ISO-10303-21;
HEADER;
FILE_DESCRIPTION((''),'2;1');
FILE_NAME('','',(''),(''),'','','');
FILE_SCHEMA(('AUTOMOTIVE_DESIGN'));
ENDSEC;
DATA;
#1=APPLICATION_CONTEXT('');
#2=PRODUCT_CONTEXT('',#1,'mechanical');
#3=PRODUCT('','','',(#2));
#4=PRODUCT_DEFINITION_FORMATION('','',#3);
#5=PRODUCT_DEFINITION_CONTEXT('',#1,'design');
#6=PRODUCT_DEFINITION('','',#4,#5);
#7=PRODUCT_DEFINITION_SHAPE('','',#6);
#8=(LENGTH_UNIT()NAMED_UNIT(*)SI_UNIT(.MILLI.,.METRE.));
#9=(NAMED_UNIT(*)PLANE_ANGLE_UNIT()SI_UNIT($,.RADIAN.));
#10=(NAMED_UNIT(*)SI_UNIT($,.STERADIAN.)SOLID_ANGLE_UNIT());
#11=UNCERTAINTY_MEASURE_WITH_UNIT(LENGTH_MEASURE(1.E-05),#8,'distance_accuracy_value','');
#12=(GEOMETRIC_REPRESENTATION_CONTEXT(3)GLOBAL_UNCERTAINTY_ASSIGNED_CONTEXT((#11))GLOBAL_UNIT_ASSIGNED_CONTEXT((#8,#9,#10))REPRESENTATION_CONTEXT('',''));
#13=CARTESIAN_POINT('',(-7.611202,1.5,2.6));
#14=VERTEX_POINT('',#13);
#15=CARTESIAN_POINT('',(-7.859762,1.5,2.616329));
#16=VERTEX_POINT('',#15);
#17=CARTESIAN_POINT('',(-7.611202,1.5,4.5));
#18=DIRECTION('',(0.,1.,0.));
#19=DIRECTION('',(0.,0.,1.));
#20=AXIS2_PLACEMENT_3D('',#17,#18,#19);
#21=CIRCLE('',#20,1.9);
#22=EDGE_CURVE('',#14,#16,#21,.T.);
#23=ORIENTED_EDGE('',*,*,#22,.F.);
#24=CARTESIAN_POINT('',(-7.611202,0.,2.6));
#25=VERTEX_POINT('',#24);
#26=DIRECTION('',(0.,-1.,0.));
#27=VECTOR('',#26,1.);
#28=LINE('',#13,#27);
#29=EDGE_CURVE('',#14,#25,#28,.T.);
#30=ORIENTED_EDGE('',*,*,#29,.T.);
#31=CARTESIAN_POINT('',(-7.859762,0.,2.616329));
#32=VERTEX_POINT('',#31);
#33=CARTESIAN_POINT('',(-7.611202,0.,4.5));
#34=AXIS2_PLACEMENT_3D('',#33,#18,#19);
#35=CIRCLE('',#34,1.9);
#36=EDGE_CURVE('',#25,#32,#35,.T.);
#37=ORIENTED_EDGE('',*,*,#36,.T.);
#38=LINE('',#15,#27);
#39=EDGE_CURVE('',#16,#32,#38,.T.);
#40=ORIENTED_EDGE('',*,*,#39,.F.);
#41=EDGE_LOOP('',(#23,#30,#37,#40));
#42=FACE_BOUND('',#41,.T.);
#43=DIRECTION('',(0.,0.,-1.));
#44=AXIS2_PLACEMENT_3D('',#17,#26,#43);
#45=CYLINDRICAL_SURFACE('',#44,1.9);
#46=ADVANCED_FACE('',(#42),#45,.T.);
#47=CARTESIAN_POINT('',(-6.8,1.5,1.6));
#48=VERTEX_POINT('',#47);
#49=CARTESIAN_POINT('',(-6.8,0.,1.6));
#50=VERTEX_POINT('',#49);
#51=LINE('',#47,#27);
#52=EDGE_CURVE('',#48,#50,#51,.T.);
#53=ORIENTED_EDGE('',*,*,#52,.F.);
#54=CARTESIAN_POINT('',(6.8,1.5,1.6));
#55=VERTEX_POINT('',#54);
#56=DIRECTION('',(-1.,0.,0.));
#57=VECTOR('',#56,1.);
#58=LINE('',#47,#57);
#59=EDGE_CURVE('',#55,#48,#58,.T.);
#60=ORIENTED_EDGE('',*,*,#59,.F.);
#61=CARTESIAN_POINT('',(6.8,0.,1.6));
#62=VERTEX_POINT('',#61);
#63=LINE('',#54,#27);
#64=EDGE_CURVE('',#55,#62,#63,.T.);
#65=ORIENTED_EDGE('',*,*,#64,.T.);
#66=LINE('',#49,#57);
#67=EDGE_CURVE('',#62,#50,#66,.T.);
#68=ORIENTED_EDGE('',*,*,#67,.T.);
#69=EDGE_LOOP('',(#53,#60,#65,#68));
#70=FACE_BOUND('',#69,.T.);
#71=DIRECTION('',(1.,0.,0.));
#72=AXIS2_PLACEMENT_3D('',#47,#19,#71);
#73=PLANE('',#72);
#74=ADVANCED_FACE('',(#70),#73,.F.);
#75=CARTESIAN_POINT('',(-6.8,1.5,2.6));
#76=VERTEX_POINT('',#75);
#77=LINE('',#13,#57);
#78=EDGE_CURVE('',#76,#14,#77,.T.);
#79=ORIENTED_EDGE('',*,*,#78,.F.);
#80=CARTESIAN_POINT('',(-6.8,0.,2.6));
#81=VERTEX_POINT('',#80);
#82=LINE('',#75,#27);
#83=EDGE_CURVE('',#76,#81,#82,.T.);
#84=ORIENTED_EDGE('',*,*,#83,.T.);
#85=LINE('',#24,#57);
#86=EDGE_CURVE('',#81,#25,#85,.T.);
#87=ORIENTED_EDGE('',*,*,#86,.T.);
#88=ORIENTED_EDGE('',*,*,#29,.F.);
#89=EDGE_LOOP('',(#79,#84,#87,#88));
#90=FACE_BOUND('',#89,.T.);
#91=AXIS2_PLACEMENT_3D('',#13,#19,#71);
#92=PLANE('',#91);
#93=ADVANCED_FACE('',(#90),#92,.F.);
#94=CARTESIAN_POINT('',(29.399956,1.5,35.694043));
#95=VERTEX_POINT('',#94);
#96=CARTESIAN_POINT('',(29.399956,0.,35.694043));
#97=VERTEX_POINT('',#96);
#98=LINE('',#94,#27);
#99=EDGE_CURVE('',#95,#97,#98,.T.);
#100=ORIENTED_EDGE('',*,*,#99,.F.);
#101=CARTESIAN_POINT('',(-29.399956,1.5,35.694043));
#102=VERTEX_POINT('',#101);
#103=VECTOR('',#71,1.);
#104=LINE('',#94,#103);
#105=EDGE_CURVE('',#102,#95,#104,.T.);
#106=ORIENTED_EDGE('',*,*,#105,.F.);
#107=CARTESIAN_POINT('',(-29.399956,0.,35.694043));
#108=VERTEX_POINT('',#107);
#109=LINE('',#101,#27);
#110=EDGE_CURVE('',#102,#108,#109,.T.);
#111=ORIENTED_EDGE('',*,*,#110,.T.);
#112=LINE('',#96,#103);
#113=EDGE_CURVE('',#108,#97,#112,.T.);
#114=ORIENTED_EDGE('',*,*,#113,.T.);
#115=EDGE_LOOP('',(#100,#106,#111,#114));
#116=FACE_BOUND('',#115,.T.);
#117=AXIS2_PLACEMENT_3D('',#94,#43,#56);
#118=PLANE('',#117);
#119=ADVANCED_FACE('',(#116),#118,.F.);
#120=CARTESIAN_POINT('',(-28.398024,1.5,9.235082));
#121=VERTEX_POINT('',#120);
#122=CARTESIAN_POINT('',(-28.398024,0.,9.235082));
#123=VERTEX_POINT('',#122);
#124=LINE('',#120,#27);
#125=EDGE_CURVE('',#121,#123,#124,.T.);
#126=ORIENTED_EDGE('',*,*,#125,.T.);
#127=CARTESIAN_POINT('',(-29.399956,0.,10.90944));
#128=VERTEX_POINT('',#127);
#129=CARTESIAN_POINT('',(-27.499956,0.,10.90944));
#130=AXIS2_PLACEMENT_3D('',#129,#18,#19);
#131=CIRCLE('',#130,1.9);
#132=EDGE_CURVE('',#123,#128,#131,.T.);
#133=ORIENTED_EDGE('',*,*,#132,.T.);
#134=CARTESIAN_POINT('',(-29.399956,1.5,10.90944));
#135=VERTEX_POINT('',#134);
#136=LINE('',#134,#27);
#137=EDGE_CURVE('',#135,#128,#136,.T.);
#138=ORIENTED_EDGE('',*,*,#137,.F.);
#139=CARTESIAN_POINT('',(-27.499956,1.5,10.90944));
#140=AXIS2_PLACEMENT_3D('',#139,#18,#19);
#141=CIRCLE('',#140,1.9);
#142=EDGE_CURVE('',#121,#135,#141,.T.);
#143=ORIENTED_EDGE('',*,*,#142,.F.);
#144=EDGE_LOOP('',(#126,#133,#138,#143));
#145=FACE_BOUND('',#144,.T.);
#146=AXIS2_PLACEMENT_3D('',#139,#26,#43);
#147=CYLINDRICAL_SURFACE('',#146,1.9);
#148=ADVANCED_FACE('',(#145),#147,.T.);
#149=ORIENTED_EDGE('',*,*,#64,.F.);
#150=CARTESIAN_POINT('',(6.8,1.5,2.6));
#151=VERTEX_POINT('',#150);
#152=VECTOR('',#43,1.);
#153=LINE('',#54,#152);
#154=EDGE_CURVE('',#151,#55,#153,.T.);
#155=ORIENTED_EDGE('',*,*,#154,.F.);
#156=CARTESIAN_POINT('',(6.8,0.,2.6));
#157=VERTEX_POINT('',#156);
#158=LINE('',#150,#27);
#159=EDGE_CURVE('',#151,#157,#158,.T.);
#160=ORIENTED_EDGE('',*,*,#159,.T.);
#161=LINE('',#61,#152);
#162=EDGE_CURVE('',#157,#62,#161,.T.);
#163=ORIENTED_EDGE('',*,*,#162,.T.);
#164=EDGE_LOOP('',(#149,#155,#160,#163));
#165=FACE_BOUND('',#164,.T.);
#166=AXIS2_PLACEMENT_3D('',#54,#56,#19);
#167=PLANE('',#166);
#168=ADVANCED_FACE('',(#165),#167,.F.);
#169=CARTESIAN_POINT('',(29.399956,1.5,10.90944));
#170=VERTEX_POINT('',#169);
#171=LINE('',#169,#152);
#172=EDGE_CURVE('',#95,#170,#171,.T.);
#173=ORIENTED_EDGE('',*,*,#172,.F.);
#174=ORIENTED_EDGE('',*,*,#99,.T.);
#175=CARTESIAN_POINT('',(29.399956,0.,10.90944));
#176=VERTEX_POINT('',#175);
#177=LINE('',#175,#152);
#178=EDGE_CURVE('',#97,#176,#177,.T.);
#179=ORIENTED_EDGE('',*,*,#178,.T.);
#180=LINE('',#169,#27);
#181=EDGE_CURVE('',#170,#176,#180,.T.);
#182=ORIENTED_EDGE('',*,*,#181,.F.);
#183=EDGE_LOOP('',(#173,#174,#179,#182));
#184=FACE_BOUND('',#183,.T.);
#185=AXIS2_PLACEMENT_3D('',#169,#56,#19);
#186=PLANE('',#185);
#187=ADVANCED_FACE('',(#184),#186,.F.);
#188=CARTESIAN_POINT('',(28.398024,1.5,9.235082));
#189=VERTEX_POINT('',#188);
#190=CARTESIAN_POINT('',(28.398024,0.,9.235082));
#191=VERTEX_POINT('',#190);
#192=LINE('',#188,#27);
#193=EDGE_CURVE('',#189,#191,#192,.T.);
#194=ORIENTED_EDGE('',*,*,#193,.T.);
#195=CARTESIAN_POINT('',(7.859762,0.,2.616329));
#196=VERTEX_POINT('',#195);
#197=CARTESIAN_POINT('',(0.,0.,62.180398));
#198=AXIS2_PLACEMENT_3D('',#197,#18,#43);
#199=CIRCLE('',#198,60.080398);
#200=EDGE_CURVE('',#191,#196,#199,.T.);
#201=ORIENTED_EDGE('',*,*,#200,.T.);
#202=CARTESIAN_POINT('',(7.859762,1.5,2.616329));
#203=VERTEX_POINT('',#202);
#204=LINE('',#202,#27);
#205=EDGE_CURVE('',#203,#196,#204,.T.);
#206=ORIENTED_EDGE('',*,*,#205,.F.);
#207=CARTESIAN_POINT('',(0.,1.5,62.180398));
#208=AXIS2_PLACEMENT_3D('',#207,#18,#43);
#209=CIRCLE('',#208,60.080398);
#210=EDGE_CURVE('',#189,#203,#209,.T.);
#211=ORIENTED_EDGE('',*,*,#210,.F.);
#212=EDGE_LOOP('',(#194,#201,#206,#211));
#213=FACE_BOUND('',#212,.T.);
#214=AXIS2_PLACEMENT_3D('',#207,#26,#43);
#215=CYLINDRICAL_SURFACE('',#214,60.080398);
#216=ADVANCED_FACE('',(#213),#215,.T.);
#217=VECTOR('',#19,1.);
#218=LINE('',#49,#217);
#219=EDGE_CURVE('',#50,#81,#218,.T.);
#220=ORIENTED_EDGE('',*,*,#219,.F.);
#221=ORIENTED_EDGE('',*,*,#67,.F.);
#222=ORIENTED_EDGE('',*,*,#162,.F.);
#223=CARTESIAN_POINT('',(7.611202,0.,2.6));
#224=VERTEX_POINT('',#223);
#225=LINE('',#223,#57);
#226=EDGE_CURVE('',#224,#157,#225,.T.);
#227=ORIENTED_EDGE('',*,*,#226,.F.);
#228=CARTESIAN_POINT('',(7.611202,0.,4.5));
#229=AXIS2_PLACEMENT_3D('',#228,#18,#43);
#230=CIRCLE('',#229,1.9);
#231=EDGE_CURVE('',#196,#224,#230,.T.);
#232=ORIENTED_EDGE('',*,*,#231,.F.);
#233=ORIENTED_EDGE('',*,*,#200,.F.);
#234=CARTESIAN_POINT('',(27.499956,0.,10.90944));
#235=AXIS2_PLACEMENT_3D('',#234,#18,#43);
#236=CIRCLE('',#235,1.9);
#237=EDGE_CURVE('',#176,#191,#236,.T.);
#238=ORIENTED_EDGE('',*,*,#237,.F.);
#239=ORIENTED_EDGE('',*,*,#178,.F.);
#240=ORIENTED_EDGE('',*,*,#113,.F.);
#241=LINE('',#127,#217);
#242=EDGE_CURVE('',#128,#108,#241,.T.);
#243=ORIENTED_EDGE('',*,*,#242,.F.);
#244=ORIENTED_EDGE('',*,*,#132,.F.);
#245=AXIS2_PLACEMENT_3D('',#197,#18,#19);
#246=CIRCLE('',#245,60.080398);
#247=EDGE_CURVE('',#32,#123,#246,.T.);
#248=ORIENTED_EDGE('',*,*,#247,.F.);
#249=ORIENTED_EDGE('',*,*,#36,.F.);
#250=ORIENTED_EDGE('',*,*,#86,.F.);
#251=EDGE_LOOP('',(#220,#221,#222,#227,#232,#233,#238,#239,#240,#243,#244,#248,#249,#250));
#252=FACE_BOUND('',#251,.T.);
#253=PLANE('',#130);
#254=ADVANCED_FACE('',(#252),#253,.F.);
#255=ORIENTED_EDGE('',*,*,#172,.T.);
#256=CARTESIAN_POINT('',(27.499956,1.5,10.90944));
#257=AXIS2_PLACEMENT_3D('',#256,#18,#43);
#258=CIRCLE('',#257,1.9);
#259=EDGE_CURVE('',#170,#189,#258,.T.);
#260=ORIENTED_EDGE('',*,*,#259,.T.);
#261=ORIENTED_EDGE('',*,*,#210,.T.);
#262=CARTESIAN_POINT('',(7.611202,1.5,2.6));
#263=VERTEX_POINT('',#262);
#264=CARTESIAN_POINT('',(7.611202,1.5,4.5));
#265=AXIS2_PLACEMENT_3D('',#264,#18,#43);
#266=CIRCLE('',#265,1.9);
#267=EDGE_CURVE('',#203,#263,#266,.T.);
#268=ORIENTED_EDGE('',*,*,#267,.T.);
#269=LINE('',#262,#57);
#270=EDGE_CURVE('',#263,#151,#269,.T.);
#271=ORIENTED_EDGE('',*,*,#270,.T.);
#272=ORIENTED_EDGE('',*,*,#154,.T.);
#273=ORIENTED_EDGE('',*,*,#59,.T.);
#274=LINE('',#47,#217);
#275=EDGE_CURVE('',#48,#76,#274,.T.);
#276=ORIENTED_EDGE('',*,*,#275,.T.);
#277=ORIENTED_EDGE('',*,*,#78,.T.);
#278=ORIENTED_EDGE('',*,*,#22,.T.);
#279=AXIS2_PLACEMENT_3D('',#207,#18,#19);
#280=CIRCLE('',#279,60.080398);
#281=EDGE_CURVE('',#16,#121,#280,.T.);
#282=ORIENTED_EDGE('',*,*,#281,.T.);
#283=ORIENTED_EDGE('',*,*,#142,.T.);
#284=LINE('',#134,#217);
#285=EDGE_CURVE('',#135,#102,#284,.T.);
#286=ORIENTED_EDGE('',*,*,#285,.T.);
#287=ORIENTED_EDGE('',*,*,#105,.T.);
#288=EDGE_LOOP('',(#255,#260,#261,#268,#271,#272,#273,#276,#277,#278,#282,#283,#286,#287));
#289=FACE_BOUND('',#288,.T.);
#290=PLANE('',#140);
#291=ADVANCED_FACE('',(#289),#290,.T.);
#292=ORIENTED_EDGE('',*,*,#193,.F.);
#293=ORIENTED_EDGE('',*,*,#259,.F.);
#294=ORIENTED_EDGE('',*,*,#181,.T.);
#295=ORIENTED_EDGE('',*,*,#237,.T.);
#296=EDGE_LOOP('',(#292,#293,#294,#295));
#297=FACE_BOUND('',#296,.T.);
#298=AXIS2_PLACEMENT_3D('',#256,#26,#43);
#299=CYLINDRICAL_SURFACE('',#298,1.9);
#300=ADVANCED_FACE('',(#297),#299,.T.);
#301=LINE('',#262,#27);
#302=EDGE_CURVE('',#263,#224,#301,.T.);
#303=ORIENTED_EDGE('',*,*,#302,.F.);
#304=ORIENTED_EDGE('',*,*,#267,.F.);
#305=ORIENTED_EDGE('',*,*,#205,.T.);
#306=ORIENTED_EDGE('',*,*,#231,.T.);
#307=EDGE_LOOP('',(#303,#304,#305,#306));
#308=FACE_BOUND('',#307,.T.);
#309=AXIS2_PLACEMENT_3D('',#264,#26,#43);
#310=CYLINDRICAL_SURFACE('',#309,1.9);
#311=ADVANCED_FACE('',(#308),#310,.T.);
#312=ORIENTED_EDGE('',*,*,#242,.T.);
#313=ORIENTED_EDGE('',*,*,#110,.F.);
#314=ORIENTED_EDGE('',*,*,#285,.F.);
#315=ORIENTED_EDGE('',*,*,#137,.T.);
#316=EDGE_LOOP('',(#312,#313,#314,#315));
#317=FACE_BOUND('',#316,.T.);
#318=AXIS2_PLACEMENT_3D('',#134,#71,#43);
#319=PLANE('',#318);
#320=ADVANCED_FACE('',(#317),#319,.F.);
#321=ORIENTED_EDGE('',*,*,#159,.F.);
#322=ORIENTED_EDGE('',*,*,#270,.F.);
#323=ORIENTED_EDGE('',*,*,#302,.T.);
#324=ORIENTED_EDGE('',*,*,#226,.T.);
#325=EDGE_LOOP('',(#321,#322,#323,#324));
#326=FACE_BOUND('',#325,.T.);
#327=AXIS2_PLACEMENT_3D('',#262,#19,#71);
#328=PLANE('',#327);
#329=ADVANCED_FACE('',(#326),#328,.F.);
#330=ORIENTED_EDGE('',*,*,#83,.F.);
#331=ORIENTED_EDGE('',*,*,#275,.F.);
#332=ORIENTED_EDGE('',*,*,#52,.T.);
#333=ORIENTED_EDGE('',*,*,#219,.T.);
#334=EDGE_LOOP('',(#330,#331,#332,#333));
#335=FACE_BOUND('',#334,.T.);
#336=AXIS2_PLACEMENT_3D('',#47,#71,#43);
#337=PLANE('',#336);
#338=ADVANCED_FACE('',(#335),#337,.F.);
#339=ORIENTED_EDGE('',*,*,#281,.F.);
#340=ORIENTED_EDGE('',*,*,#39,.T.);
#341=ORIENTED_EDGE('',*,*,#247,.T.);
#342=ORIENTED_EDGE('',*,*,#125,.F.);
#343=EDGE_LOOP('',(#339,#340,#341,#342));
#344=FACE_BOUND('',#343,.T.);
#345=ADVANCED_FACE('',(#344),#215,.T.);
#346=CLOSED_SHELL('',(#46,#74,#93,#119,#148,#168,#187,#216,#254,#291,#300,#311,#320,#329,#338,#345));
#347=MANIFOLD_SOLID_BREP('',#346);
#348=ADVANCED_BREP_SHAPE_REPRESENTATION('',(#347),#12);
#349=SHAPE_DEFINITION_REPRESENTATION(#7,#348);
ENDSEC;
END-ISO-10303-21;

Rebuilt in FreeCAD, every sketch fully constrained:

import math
import FreeCAD as App
import Part
import Sketcher

V = App.Vector

doc = App.newDocument("Part")
body = doc.addObject("PartDesign::Body", "Body")

# Sketch on XZ plane
sketch1 = body.newObject("Sketcher::SketchObject", "Sketch")
sketch1.AttachmentSupport = (doc.getObject("XZ_Plane"), [""])
sketch1.MapMode = "FlatFace"
sketch1.addGeometry([
    Part.LineSegment(V(29.4, 35.69, 0), V(29.4, 10.91, 0)),  # 0
    Part.ArcOfCircle(Part.Circle(V(27.5, 10.91, 0), V(0, 0, 1), 1.9), math.radians(-62), math.radians(0)),  # 1
    Part.ArcOfCircle(Part.Circle(V(0, 62.18, 0), V(0, 0, 1), 60.08), math.radians(-82), math.radians(-62)),  # 2
    Part.ArcOfCircle(Part.Circle(V(7.61, 4.5, 0), V(0, 0, 1), 1.9), math.radians(-90), math.radians(-82.48)),  # 3
    Part.LineSegment(V(7.61, 2.6, 0), V(6.8, 2.6, 0)),  # 4
    Part.LineSegment(V(6.8, 2.6, 0), V(6.8, 1.6, 0)),  # 5
    Part.LineSegment(V(6.8, 1.6, 0), V(-6.8, 1.6, 0)),  # 6
    Part.LineSegment(V(-6.8, 1.6, 0), V(-6.8, 2.6, 0)),  # 7
    Part.LineSegment(V(-6.8, 2.6, 0), V(-7.61, 2.6, 0)),  # 8
    Part.ArcOfCircle(Part.Circle(V(-7.61, 4.5, 0), V(0, 0, 1), 1.9), math.radians(-97.52), math.radians(-90)),  # 9
    Part.ArcOfCircle(Part.Circle(V(0, 62.18, 0), V(0, 0, 1), 60.08), math.radians(-118), math.radians(-98)),  # 10
    Part.ArcOfCircle(Part.Circle(V(-27.5, 10.91, 0), V(0, 0, 1), 1.9), math.radians(-180), math.radians(-118)),  # 11
    Part.LineSegment(V(-29.4, 10.91, 0), V(-29.4, 35.69, 0)),  # 12
    Part.LineSegment(V(-29.4, 35.69, 0), V(29.4, 35.69, 0)),  # 13
], False)
sketch1.addConstraint([
    Sketcher.Constraint("Tangent", 0, 2, 1, 2),
    Sketcher.Constraint("Tangent", 1, 1, 2, 2),
    Sketcher.Constraint("Tangent", 2, 1, 3, 2),
    Sketcher.Constraint("Tangent", 3, 1, 4, 1),
    Sketcher.Constraint("Coincident", 4, 2, 5, 1),
    Sketcher.Constraint("Coincident", 5, 2, 6, 1),
    Sketcher.Constraint("Coincident", 6, 2, 7, 1),
    Sketcher.Constraint("Coincident", 7, 2, 8, 1),
    Sketcher.Constraint("Tangent", 8, 2, 9, 2),
    Sketcher.Constraint("Tangent", 9, 1, 10, 2),
    Sketcher.Constraint("Tangent", 10, 1, 11, 2),
    Sketcher.Constraint("Tangent", 11, 1, 12, 1),
    Sketcher.Constraint("Coincident", 12, 2, 13, 1),
    Sketcher.Constraint("Coincident", 13, 2, 0, 1),
    Sketcher.Constraint("Vertical", 0),
    Sketcher.Constraint("Horizontal", 4),
    Sketcher.Constraint("Vertical", 5),
    Sketcher.Constraint("Horizontal", 6),
    Sketcher.Constraint("Vertical", 7),
    Sketcher.Constraint("Horizontal", 8),
    Sketcher.Constraint("Vertical", 12),
    Sketcher.Constraint("Horizontal", 13),
    Sketcher.Constraint("Coincident", 10, 3, 2, 3),
    Sketcher.Constraint("Equal", 1, 3),
    Sketcher.Constraint("Equal", 3, 9),
    Sketcher.Constraint("Equal", 2, 10),
    Sketcher.Constraint("Equal", 9, 11),
    Sketcher.Constraint("Symmetric", 3, 3, 9, 3, -2),
    Sketcher.Constraint("Horizontal", 1, 3, 11, 3),
    Sketcher.Constraint("Equal", 4, 8),
    Sketcher.Constraint("Radius", 1, 1.9),
    Sketcher.Constraint("DistanceY", 5, 2, 5, 1, 1.0),
    Sketcher.Constraint("DistanceX", 6, 2, 6, 1, 13.6),
    Sketcher.Constraint("DistanceY", -1, 1, 3, 3, 4.5),
    Sketcher.Constraint("Radius", 2, 60.080398),
    Sketcher.Constraint("DistanceY", -1, 1, 2, 3, 62.180398),
    Sketcher.Constraint("DistanceX", 13, 1, 13, 2, 58.799913),
    Sketcher.Constraint("DistanceY", 0, 2, 0, 1, 24.784602),
])
pad1 = body.newObject("PartDesign::Pad", "Pad")
pad1.Profile = sketch1
pad1.Length = 1.5
pad1.Reversed = True

doc.recompute()
